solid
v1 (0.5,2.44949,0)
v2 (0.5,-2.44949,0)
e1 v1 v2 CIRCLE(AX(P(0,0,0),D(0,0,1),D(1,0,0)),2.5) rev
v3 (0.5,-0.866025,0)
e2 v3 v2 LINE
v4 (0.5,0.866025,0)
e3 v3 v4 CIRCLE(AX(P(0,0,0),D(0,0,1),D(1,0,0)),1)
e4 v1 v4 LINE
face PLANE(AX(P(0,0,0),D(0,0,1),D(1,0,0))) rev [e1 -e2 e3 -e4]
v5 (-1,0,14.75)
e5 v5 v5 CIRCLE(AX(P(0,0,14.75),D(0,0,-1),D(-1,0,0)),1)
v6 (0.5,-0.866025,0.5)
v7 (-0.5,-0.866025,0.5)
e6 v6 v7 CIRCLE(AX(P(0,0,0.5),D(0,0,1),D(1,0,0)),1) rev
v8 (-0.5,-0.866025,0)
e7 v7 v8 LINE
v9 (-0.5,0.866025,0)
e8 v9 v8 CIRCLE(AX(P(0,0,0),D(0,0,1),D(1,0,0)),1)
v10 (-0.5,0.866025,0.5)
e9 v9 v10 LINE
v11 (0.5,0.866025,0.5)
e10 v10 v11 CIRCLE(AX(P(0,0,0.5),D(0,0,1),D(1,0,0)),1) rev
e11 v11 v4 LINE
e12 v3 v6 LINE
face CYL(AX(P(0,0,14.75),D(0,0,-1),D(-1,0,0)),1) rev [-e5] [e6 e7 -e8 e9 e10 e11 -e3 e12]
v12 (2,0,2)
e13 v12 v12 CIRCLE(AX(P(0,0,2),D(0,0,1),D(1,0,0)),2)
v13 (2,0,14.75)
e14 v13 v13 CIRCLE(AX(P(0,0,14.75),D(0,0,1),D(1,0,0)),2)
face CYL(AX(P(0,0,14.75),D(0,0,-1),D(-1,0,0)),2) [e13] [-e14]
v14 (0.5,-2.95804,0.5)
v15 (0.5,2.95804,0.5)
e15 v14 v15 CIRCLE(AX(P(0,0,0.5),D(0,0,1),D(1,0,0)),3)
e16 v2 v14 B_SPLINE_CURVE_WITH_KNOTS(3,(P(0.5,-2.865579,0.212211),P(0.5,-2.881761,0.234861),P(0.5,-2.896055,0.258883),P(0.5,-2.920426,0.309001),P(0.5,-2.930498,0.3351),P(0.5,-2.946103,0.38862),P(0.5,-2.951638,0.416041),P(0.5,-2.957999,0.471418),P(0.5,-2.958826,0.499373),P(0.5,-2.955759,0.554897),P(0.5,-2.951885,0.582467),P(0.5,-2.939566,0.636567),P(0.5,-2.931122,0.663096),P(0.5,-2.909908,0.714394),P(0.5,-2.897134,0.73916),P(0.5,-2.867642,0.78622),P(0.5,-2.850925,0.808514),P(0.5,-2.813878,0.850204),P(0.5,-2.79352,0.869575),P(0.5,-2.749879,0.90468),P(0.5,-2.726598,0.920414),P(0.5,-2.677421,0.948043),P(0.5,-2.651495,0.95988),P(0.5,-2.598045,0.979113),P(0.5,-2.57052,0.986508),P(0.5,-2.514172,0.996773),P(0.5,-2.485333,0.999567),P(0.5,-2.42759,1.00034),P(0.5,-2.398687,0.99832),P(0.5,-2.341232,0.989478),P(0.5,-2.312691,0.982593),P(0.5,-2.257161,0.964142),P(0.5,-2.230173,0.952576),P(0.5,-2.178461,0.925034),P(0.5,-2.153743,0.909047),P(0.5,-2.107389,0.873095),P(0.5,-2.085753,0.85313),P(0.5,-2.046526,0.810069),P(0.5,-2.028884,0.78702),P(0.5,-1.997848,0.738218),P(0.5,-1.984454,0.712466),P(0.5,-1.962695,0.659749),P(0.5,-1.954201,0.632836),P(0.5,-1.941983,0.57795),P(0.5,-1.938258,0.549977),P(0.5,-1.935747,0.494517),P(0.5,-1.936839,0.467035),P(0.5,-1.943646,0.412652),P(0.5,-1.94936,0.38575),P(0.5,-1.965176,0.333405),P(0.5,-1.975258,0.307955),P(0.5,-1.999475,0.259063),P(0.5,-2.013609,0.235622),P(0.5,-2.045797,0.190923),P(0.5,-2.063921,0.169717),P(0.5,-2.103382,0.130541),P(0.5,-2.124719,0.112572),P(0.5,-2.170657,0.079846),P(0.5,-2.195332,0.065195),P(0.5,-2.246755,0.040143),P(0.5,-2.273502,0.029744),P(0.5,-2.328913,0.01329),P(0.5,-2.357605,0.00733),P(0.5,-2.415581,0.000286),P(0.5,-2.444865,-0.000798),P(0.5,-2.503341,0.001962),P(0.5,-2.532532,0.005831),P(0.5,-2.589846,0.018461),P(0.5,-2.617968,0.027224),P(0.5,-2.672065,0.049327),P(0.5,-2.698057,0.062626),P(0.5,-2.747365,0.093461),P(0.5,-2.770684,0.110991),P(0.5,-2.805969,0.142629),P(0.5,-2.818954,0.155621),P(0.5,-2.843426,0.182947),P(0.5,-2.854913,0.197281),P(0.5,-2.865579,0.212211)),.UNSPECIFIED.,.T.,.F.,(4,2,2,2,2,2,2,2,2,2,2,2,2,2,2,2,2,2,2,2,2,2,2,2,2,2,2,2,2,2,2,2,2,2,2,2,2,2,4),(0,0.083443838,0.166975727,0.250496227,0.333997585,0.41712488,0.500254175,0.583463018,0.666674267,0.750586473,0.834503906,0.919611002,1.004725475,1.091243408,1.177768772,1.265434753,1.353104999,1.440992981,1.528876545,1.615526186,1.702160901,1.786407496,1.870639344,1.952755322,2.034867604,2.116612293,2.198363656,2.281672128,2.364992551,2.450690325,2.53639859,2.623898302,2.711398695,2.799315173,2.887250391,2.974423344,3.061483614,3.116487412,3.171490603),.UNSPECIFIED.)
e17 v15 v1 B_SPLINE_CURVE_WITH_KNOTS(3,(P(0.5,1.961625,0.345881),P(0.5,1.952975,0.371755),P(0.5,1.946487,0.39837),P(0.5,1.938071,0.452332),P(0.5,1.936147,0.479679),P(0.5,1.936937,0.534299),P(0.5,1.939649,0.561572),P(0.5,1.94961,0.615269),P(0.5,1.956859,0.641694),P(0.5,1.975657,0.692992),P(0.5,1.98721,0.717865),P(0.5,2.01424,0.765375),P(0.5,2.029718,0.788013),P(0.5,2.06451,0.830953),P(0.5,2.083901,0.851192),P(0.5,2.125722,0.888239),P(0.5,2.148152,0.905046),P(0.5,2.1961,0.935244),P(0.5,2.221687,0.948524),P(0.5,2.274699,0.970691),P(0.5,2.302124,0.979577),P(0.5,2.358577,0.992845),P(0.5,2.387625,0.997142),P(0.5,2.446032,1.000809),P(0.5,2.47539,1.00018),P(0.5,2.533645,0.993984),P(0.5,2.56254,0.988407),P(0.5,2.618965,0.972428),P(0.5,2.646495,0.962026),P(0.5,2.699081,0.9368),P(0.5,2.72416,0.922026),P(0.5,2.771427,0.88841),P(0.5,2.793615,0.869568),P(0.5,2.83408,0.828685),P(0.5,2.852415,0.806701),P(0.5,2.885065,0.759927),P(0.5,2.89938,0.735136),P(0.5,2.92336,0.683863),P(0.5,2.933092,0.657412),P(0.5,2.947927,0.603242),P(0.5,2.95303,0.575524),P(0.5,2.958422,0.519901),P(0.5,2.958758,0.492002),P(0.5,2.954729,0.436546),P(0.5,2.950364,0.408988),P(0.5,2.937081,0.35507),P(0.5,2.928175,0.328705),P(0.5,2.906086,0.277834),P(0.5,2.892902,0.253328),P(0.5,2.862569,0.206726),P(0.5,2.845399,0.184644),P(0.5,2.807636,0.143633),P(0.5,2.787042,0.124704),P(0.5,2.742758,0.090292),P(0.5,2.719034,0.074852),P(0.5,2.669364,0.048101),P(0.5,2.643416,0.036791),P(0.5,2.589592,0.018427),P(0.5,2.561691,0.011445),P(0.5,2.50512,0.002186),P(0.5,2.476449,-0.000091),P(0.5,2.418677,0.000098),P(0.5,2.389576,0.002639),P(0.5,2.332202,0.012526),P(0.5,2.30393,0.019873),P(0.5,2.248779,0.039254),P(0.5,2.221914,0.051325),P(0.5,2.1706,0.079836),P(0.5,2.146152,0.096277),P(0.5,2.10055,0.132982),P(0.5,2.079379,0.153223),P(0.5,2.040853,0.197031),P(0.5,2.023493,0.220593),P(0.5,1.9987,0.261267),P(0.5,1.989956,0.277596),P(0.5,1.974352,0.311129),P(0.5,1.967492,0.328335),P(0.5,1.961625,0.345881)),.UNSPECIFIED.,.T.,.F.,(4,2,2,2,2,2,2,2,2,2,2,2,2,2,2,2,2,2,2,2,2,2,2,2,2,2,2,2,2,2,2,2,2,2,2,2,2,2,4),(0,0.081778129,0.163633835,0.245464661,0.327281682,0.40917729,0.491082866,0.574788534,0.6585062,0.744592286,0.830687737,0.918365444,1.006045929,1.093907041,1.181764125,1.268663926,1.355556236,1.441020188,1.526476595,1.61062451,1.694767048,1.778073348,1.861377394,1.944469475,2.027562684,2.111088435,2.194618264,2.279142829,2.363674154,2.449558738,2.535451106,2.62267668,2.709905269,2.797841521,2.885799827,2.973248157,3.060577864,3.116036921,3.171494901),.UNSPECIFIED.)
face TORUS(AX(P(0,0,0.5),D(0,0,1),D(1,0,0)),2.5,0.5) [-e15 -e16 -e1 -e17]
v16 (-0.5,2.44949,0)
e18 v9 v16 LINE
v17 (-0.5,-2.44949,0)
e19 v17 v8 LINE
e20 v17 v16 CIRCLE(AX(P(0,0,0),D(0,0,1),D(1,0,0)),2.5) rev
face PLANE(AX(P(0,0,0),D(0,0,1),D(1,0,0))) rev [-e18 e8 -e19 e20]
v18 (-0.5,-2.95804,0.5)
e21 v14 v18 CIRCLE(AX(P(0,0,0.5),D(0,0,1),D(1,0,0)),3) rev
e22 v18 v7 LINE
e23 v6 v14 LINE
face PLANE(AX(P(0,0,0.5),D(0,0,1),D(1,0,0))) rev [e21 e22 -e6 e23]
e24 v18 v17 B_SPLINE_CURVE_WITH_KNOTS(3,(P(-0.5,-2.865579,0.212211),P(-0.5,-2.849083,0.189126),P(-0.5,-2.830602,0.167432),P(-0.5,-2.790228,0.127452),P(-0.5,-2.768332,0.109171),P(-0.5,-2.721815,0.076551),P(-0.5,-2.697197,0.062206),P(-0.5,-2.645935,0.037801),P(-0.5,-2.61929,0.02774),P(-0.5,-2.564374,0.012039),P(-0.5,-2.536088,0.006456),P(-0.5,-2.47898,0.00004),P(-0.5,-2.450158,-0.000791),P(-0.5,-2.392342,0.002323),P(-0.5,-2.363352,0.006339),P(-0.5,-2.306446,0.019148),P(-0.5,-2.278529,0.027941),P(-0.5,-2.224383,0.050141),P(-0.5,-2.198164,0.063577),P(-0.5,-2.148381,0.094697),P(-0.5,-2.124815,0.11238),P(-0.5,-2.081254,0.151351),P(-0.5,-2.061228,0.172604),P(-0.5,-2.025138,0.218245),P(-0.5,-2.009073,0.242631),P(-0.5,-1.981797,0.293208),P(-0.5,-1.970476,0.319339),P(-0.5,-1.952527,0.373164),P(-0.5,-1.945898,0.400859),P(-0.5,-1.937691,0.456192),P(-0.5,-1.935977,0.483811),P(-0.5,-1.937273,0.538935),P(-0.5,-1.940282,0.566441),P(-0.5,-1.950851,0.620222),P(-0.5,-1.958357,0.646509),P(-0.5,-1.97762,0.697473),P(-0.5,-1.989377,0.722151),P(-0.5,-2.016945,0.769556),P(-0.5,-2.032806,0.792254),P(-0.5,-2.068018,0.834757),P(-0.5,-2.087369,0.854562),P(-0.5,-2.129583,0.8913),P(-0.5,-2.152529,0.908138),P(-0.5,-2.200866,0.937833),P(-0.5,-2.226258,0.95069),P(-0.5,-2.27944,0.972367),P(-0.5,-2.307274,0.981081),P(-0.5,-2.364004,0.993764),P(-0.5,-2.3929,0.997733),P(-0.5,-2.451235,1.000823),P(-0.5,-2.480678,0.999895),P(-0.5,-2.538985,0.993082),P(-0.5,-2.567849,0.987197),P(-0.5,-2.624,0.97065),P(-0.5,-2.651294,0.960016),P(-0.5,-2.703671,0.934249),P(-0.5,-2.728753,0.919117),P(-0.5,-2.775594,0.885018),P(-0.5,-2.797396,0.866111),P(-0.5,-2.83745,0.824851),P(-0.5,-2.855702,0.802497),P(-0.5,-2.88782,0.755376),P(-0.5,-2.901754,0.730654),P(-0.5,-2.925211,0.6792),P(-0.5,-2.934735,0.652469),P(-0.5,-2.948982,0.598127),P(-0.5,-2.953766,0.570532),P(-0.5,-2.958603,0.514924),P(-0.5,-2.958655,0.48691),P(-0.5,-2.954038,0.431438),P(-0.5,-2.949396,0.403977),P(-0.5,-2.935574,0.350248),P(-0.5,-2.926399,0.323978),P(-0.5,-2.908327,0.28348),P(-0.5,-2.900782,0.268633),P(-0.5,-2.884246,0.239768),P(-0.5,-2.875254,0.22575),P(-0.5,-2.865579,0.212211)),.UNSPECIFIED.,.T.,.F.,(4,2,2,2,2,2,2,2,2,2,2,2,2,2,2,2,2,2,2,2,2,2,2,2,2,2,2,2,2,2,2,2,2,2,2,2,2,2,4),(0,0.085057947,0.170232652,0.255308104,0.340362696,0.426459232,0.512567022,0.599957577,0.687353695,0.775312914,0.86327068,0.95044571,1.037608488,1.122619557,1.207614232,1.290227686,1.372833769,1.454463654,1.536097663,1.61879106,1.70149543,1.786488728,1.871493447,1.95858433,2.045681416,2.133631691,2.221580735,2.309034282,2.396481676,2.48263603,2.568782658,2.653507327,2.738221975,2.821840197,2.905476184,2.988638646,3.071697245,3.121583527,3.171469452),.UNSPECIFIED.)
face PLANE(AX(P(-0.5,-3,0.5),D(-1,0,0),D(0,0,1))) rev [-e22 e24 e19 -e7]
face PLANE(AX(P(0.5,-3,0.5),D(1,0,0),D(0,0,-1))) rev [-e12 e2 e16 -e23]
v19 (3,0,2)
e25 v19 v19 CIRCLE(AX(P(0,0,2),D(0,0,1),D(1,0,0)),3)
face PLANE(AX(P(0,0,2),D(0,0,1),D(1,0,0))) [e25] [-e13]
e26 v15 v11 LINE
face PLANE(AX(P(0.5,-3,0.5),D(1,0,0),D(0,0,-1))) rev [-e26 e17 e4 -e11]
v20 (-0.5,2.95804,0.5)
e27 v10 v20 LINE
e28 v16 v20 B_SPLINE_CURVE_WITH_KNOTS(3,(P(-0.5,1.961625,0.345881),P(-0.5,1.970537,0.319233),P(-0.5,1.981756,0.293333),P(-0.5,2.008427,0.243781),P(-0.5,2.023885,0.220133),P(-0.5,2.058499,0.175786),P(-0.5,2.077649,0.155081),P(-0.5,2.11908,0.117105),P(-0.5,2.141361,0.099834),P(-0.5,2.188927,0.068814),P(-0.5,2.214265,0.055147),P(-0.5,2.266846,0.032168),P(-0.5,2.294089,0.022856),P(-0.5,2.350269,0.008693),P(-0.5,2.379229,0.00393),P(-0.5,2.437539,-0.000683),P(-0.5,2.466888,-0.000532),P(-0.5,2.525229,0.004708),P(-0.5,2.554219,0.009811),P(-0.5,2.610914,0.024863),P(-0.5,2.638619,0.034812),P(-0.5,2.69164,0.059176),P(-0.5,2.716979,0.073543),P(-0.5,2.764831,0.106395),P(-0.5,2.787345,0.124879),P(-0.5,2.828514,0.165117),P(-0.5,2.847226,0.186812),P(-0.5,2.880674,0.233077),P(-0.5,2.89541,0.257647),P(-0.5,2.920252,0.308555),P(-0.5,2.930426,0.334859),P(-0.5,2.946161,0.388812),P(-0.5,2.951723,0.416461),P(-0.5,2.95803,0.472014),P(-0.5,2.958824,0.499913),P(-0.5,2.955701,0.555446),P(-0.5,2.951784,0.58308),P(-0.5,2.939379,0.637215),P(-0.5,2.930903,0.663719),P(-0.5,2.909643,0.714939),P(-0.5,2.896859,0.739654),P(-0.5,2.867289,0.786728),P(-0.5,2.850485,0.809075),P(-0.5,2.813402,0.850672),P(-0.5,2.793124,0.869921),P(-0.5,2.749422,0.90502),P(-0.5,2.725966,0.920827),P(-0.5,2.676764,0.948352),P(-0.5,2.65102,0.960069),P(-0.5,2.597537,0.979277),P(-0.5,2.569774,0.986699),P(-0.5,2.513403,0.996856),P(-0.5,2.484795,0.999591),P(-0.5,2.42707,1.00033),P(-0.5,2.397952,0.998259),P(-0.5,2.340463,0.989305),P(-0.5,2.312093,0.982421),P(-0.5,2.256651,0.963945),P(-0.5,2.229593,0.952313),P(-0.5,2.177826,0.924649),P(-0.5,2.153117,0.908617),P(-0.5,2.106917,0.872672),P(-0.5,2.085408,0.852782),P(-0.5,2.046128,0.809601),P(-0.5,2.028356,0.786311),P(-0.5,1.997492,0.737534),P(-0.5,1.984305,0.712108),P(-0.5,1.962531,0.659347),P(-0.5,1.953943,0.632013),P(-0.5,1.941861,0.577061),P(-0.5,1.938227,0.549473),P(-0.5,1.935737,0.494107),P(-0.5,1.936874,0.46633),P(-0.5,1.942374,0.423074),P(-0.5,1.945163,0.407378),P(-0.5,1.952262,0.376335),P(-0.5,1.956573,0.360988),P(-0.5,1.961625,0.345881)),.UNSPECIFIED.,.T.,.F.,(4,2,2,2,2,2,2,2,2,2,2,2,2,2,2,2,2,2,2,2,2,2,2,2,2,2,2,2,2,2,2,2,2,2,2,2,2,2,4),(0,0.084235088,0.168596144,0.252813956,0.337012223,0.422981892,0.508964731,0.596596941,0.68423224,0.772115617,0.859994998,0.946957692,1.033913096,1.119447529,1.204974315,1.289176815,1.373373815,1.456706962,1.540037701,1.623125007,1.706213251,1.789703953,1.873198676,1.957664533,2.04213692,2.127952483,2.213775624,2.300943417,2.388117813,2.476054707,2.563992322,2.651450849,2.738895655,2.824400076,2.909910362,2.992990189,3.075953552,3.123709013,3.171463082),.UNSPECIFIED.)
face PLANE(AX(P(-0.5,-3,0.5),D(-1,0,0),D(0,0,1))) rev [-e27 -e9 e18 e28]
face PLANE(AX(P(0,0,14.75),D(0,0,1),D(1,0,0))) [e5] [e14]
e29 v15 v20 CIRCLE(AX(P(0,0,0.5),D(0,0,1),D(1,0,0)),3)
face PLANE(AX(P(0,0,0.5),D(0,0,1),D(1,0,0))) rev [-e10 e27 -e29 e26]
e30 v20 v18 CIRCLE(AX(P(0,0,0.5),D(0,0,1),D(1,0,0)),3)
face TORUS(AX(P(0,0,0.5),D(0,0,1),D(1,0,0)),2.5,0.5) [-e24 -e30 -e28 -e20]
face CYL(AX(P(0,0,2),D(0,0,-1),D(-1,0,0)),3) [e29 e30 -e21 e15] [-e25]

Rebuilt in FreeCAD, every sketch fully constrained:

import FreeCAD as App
import Part
import Sketcher

V = App.Vector
Q = App.Units.Quantity


def edges_at(feature, points):
    """Names of the edges that pass closest to the given points."""
    edges = feature.Shape.Edges
    near = lambda p: min(range(len(edges)), key=lambda i: edges[i].distToShape(Part.Vertex(*p))[0])
    return sorted({f"Edge{near(p) + 1}" for p in points})


def add_polygon(sketch, points):
    """Adds a closed chain of lines whose ends are joined by coincident constraints."""
    first, n = sketch.GeometryCount, len(points)
    for a, b in zip(points, points[1:] + points[:1]):
        sketch.addGeometry(Part.LineSegment(App.Vector(*a, 0), App.Vector(*b, 0)), False)
    for i in range(n):
        sketch.addConstraint(Sketcher.Constraint("Coincident", first + i, 2, first + (i + 1) % n, 1))

doc = App.newDocument("Part")
body = doc.addObject("PartDesign::Body", "Body")

# Sketch on XY plane
sketch1 = doc.addObject("Sketcher::SketchObject", "Sketch")
body.addObject(sketch1)
sketch1.AttachmentSupport = (doc.XY_Plane, [""])
sketch1.MapMode = "FlatFace"
sketch1.addGeometry(Part.Circle(V(0, 0, 0), V(0, 0, 1), 3), False)
sketch1.addConstraint([
    Sketcher.Constraint("Coincident", 0, 3, -1, 1),
    Sketcher.Constraint("Diameter", 0, Q("6 mm")),
])
pad1 = doc.addObject("PartDesign::Pad", "Pad")
body.addObject(pad1)
pad1.Profile = sketch1
pad1.Length = 2
doc.recompute()

fillet = doc.addObject("PartDesign::Fillet", "Fillet")
body.addObject(fillet)
fillet.Base = (pad1, edges_at(pad1, [(-3, 0, 0)]))
fillet.Radius = 0.5

# Sketch on XY plane
sketch2 = doc.addObject("Sketcher::SketchObject", "Sketch001")
body.addObject(sketch2)
sketch2.AttachmentSupport = (doc.XY_Plane, [""])
sketch2.MapMode = "FlatFace"
sketch2.AttachmentOffset = App.Placement(V(0, 0, 2), App.Rotation())
sketch2.addGeometry(Part.Circle(V(0, 0, 0), V(0, 0, 1), 2), False)
sketch2.addConstraint([
    Sketcher.Constraint("Coincident", 0, 3, -1, 1),
    Sketcher.Constraint("Diameter", 0, Q("4 mm")),
])
pad2 = doc.addObject("PartDesign::Pad", "Pad001")
body.addObject(pad2)
pad2.Profile = sketch2
pad2.Length = 12.75

# Sketch on XY plane
sketch3 = doc.addObject("Sketcher::SketchObject", "Sketch002")
body.addObject(sketch3)
sketch3.AttachmentSupport = (doc.XY_Plane, [""])
sketch3.MapMode = "FlatFace"
sketch3.addGeometry(Part.Circle(V(0, 0, 0), V(0, 0, 1), 1), False)
sketch3.addConstraint([
    Sketcher.Constraint("Coincident", 0, 3, -1, 1),
    Sketcher.Constraint("Diameter", 0, Q("2 mm")),
])
pocket1 = doc.addObject("PartDesign::Pocket", "Pocket")
body.addObject(pocket1)
pocket1.Profile = sketch3
pocket1.Type = "ThroughAll"
pocket1.Midplane = True

# Sketch on XY plane
sketch4 = doc.addObject("Sketcher::SketchObject", "Sketch003")
body.addObject(sketch4)
sketch4.AttachmentSupport = (doc.XY_Plane, [""])
sketch4.MapMode = "FlatFace"
add_polygon(sketch4, [(0.5, 3), (0.5, -3), (-0.5, -3), (-0.5, 3)])  # lines 0-3
sketch4.addConstraint([
    Sketcher.Constraint("Vertical", 0),
    Sketcher.Constraint("Horizontal", 1),
    Sketcher.Constraint("Vertical", 2),
    Sketcher.Constraint("Horizontal", 3),
    Sketcher.Constraint("Symmetric", 0, 2, 2, 2, -1, 1),
    Sketcher.Constraint("DistanceX", 1, 2, 1, 1, Q("1 mm")),
    Sketcher.Constraint("DistanceY", 0, 2, 0, 1, Q("6 mm")),
])
pocket2 = doc.addObject("PartDesign::Pocket", "Pocket001")
body.addObject(pocket2)
pocket2.Profile = sketch4
pocket2.Length = 0.5
pocket2.Reversed = True

doc.recompute()
